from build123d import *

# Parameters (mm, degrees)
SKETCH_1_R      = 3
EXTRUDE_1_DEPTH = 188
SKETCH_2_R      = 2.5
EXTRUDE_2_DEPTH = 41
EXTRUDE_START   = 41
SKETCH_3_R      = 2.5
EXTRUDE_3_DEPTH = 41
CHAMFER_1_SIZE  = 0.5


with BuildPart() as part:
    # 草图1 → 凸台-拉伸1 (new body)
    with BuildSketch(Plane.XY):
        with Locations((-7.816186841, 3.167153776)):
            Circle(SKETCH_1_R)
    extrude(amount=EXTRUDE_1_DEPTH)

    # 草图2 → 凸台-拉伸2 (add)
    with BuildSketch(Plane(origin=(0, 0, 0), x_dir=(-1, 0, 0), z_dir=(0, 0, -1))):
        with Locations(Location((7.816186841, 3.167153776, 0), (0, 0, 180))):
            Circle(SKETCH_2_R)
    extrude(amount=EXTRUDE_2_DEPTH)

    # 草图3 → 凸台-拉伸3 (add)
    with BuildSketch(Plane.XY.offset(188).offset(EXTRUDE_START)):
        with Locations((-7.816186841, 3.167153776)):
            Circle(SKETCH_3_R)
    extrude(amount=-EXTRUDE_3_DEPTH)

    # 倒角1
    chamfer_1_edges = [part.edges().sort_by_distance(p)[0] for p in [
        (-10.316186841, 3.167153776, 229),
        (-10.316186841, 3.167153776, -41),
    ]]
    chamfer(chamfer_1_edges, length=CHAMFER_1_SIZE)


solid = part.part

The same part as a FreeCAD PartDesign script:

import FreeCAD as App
import Part
import Sketcher
Q = App.Units.Quantity


def edges_at(feature, points):
    """Names of the edges that pass closest to the given points."""
    edges = feature.Shape.Edges
    near = lambda p: min(range(len(edges)), key=lambda i: edges[i].distToShape(Part.Vertex(*p))[0])
    return sorted({f"Edge{near(p) + 1}" for p in points})

doc = App.newDocument("Part")
body = doc.addObject("PartDesign::Body", "Body")

sketch1 = body.newObject("Sketcher::SketchObject", "Sketch")
sketch1.AttachmentSupport = (doc.getObject("XY_Plane"), [""])
sketch1.MapMode = "FlatFace"
sketch1.addGeometry(Part.Circle(App.Vector(-7.8, 3.2, 0), App.Vector(0, 0, 1), 3), False)
sketch1.addConstraint([
    Sketcher.Constraint("Diameter", 0, Q("6 mm")),
    Sketcher.Constraint("DistanceX", 0, 3, -1, 1, Q("7.816187 mm")),
    Sketcher.Constraint("DistanceY", -1, 1, 0, 3, Q("3.167154 mm")),
])
pad1 = body.newObject("PartDesign::Pad", "Pad")
pad1.Profile = sketch1
pad1.Length = 188

sketch2 = body.newObject("Sketcher::SketchObject", "Sketch001")
sketch2.AttachmentSupport = (doc.getObject("XY_Plane"), [""])
sketch2.MapMode = "FlatFace"
sketch2.addGeometry(Part.Circle(App.Vector(-7.8, 3.2, 0), App.Vector(0, 0, 1), 2.5), False)
sketch2.addConstraint([
    Sketcher.Constraint("Diameter", 0, Q("5 mm")),
    Sketcher.Constraint("DistanceX", 0, 3, -1, 1, Q("7.816187 mm")),
    Sketcher.Constraint("DistanceY", -1, 1, 0, 3, Q("3.167154 mm")),
])
pad2 = body.newObject("PartDesign::Pad", "Pad001")
pad2.Profile = sketch2
pad2.Length = 41
pad2.Reversed = True

sketch3 = body.newObject("Sketcher::SketchObject", "Sketch002")
sketch3.AttachmentSupport = (doc.getObject("XY_Plane"), [""])
sketch3.MapMode = "FlatFace"
sketch3.AttachmentOffset = App.Placement(App.Vector(0, 0, 229), App.Rotation())
sketch3.addGeometry(Part.Circle(App.Vector(-7.8, 3.2, 0), App.Vector(0, 0, 1), 2.5), False)
sketch3.addConstraint([
    Sketcher.Constraint("Diameter", 0, Q("5 mm")),
    Sketcher.Constraint("DistanceX", 0, 3, -1, 1, Q("7.816187 mm")),
    Sketcher.Constraint("DistanceY", -1, 1, 0, 3, Q("3.167154 mm")),
])
pad3 = body.newObject("PartDesign::Pad", "Pad002")
pad3.Profile = sketch3
pad3.Length = 41
pad3.Reversed = True
doc.recompute()

chamfer = body.newObject("PartDesign::Chamfer", "Chamfer")
chamfer.Base = (pad3, edges_at(pad3, [(-10.316, 3.167, 229), (-10.316, 3.167, -41)]))
chamfer.Size = 0.5

doc.recompute()
